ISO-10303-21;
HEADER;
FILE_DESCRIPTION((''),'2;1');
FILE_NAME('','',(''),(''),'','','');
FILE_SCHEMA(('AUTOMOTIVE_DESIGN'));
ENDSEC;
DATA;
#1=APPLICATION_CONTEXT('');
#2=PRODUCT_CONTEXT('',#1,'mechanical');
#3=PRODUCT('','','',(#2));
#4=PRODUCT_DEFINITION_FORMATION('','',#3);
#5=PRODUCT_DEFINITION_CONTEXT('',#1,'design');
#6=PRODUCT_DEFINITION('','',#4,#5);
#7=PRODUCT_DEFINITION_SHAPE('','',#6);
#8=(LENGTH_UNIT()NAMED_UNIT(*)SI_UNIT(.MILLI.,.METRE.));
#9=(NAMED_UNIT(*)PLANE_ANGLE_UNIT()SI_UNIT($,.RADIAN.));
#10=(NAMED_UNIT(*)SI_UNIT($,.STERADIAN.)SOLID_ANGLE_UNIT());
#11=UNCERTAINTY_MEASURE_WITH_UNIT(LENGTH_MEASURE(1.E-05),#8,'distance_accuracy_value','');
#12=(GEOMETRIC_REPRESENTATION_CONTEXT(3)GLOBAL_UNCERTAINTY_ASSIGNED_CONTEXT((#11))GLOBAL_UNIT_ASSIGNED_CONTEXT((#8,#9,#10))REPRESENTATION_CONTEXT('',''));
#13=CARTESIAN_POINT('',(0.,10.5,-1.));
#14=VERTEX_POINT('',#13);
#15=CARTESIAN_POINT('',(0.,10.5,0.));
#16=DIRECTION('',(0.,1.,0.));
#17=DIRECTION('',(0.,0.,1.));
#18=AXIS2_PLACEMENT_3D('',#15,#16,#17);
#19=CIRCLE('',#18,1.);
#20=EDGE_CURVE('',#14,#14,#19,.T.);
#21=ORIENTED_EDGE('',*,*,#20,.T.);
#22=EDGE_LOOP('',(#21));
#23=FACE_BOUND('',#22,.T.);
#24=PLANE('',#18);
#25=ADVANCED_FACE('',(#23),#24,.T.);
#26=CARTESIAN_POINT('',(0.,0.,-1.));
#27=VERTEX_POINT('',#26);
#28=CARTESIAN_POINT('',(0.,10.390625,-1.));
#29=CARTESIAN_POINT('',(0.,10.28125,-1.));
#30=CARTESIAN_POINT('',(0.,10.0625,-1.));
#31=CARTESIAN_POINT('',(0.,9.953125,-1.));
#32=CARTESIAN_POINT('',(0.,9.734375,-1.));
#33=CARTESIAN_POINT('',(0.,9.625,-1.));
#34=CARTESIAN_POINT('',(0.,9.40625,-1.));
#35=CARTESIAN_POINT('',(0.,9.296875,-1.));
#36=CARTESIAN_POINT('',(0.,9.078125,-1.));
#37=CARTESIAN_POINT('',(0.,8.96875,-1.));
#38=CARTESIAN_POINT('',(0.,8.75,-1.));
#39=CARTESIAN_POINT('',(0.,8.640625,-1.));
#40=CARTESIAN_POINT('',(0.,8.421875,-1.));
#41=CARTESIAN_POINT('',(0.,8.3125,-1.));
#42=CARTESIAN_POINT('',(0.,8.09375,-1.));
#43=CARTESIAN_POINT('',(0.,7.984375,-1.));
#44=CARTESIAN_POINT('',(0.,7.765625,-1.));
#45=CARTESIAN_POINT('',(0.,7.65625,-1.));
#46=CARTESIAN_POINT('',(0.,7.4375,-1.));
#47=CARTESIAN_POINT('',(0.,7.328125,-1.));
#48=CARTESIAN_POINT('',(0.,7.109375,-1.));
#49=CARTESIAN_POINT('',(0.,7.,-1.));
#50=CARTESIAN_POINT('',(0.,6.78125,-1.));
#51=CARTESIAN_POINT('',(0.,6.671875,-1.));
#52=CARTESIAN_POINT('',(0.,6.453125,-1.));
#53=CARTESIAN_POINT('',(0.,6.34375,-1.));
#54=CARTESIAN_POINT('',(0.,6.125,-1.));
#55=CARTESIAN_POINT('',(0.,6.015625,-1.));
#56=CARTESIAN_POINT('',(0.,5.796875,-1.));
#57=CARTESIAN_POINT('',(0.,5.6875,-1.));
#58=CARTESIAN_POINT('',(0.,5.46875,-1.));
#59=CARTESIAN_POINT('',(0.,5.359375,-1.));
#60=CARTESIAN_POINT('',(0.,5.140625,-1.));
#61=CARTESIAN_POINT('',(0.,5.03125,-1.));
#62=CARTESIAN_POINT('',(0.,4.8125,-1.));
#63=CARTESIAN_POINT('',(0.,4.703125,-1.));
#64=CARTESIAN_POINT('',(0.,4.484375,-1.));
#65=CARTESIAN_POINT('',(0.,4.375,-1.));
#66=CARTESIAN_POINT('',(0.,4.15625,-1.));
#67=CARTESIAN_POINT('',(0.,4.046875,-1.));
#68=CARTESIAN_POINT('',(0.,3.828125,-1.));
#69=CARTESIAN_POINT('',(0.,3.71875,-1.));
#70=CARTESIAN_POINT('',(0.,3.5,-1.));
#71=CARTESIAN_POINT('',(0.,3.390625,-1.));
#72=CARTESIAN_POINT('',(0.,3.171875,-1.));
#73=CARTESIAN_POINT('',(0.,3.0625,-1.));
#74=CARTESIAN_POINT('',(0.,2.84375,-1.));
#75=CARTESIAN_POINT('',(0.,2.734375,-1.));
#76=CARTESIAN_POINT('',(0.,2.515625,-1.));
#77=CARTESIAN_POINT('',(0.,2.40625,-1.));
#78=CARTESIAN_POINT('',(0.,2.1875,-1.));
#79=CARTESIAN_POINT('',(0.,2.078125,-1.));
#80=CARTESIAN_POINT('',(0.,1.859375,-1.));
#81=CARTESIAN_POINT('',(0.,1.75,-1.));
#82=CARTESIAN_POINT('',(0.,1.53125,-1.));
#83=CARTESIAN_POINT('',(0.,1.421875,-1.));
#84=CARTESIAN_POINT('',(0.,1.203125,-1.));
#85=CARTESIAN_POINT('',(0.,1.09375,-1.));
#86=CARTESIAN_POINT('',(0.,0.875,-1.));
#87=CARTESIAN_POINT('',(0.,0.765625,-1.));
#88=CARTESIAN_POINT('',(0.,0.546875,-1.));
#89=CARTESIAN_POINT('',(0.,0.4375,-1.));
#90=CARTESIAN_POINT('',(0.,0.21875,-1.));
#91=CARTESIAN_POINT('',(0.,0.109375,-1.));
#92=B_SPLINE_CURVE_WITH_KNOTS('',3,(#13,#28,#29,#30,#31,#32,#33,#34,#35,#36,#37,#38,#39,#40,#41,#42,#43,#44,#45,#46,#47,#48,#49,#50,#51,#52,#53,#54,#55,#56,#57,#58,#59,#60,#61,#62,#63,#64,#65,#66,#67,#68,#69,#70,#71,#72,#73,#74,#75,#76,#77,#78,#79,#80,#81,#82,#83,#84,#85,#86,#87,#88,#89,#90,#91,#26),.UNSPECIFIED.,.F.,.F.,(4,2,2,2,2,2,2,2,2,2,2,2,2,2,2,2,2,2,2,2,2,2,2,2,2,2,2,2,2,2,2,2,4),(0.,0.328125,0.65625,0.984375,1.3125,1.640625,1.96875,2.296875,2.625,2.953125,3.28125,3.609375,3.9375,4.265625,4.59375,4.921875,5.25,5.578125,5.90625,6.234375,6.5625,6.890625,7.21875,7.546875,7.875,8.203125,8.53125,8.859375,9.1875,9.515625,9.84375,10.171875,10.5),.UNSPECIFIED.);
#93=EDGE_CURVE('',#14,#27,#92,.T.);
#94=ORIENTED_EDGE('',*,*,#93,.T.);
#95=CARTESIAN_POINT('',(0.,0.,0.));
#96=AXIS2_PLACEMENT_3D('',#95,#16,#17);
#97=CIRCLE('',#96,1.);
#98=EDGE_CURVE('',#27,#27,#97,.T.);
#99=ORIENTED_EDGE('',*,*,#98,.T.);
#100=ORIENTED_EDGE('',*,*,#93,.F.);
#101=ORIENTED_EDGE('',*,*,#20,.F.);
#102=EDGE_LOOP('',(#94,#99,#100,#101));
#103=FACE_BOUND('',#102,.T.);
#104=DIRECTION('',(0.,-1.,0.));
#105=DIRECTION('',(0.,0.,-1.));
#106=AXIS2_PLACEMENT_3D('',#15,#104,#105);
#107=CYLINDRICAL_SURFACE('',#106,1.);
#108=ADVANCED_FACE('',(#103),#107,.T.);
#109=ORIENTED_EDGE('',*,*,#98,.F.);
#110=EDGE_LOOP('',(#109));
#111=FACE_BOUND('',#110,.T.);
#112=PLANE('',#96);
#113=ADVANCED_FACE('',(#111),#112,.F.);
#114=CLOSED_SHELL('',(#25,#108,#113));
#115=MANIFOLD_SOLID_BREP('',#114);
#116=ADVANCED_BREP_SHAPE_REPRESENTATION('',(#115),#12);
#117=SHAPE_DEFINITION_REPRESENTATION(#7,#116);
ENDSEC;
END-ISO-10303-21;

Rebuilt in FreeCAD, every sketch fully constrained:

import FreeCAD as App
import Part
import Sketcher

V = App.Vector

doc = App.newDocument("Part")
body = doc.addObject("PartDesign::Body", "Body")

sketch1 = body.newObject("Sketcher::SketchObject", "Sketch")
sketch1.AttachmentSupport = (doc.getObject("XZ_Plane"), [""])
sketch1.MapMode = "FlatFace"
sketch1.addGeometry(Part.Circle(V(0, 0, 0), V(0, 0, 1), 1), False)
sketch1.addConstraint(Sketcher.Constraint("Coincident", 0, 3, -1, 1))
sketch1.addConstraint(Sketcher.Constraint("Diameter", 0, 2.0))
pad1 = body.newObject("PartDesign::Pad", "Pad")
pad1.Profile = sketch1
pad1.Length = 10.5
pad1.Reversed = True

doc.recompute()
